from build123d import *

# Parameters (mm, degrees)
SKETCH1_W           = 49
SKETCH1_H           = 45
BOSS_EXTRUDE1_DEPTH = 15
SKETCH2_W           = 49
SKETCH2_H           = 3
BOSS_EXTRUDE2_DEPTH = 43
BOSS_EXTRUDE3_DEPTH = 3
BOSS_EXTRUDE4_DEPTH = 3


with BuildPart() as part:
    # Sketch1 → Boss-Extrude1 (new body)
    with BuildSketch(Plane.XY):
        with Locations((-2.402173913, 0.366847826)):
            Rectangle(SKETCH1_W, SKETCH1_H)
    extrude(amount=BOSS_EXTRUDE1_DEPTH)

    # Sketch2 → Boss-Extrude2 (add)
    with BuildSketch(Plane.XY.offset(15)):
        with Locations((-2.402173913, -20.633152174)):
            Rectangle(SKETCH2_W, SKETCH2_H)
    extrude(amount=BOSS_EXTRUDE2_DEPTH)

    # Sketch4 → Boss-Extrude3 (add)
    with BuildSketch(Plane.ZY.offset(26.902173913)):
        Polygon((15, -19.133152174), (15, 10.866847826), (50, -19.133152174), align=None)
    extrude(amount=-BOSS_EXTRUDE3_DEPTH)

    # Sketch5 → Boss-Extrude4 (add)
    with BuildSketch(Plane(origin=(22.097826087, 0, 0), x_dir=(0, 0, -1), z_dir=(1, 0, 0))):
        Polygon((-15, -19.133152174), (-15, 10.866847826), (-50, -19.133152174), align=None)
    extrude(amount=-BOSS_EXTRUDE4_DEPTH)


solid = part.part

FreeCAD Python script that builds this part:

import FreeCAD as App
import Part
import Sketcher
from FreeCAD import Vector
Q = App.Units.Quantity


def add_polygon(sketch, points):
    """Adds a closed chain of lines whose ends are joined by coincident constraints."""
    first, n = sketch.GeometryCount, len(points)
    for a, b in zip(points, points[1:] + points[:1]):
        sketch.addGeometry(Part.LineSegment(App.Vector(*a, 0), App.Vector(*b, 0)), False)
    for i in range(n):
        sketch.addConstraint(Sketcher.Constraint("Coincident", first + i, 2, first + (i + 1) % n, 1))

doc = App.newDocument("Part")
params = doc.addObject("Spreadsheet::Sheet", "Params")
for row, (alias, value) in enumerate([
    ("sketch1_width", "49 mm"),
    ("sketch1_height", "45 mm"),
    ("pad1_length", "15 mm"),
    ("sketch2_width", "49 mm"),
    ("sketch2_height", "3 mm"),
    ("pad2_length", "43 mm"),
    ("sketch3_width", "30 mm"),
    ("sketch3_height", "35 mm"),
    ("pad3_length", "3 mm"),
    ("sketch4_width", "30 mm"),
    ("sketch4_height", "35 mm"),
    ("pad4_length", "3 mm"),
], start=1):
    params.set(f"A{row}", alias)
    params.set(f"B{row}", "=" + value)
    params.setAlias(f"B{row}", alias)

body = doc.addObject("PartDesign::Body", "Body")

# Sketch on XY plane
sketch1 = body.newObject("Sketcher::SketchObject", "Sketch")
sketch1.AttachmentSupport = (doc.getObject("XY_Plane"), [""])
sketch1.MapMode = "FlatFace"
add_polygon(sketch1, [(-27, 23), (-27, -22), (22, -22), (22, 23)])  # lines 0-3
sketch1.addConstraint([
    Sketcher.Constraint("Vertical", 0),
    Sketcher.Constraint("Horizontal", 1),
    Sketcher.Constraint("Vertical", 2),
    Sketcher.Constraint("Horizontal", 3),
    Sketcher.Constraint("DistanceX", 1, 1, 1, 2, Q("49 mm")),
    Sketcher.Constraint("DistanceY", 0, 2, 0, 1, Q("45 mm")),
    Sketcher.Constraint("DistanceX", 0, 2, -1, 1, Q("26.902174 mm")),
    Sketcher.Constraint("DistanceY", 0, 2, -1, 1, Q("22.133152 mm")),
])
sketch1.setExpression("Constraints[8]", "Params.sketch1_width")
sketch1.setExpression("Constraints[9]", "Params.sketch1_height")
pad1 = body.newObject("PartDesign::Pad", "Pad")
pad1.Profile = sketch1
pad1.setExpression("Length", "Params.pad1_length")

# Sketch on XY plane
sketch2 = body.newObject("Sketcher::SketchObject", "Sketch001")
sketch2.AttachmentSupport = (doc.getObject("XY_Plane"), [""])
sketch2.MapMode = "FlatFace"
sketch2.AttachmentOffset = App.Placement(Vector(0, 0, 15), App.Rotation())
add_polygon(sketch2, [(-26.9, -19.1), (-26.9, -22.1), (22.1, -22.1), (22.1, -19.1)])  # lines 0-3
sketch2.addConstraint([
    Sketcher.Constraint("Vertical", 0),
    Sketcher.Constraint("Horizontal", 1),
    Sketcher.Constraint("Vertical", 2),
    Sketcher.Constraint("Horizontal", 3),
    Sketcher.Constraint("DistanceX", 1, 1, 1, 2, Q("49 mm")),
    Sketcher.Constraint("DistanceY", 0, 2, 0, 1, Q("3 mm")),
    Sketcher.Constraint("DistanceX", 0, 2, -1, 1, Q("26.902174 mm")),
    Sketcher.Constraint("DistanceY", 0, 2, -1, 1, Q("22.133152 mm")),
])
sketch2.setExpression("Constraints[8]", "Params.sketch2_width")
sketch2.setExpression("Constraints[9]", "Params.sketch2_height")
pad2 = body.newObject("PartDesign::Pad", "Pad001")
pad2.Profile = sketch2
pad2.setExpression("Length", "Params.pad2_length")

# Sketch on YZ plane
sketch3 = body.newObject("Sketcher::SketchObject", "Sketch002")
sketch3.AttachmentSupport = (doc.getObject("YZ_Plane"), [""])
sketch3.MapMode = "FlatFace"
sketch3.AttachmentOffset = App.Placement(Vector(0, 0, -26.902174), App.Rotation())
add_polygon(sketch3, [(11, 15), (-19, 15), (-19, 50)])  # lines 0-2
sketch3.addConstraint([
    Sketcher.Constraint("Horizontal", 0),
    Sketcher.Constraint("Vertical", 1),
    Sketcher.Constraint("DistanceX", 0, 2, 0, 1, Q("30 mm")),
    Sketcher.Constraint("DistanceY", 1, 1, 1, 2, Q("35 mm")),
    Sketcher.Constraint("DistanceY", -1, 1, 0, 2, Q("15 mm")),
    Sketcher.Constraint("DistanceX", 0, 2, -1, 1, Q("19.133152 mm")),
])
sketch3.setExpression("Constraints[5]", "Params.sketch3_width")
sketch3.setExpression("Constraints[6]", "Params.sketch3_height")
pad3 = body.newObject("PartDesign::Pad", "Pad002")
pad3.Profile = sketch3
pad3.setExpression("Length", "Params.pad3_length")

# Sketch on YZ plane
sketch4 = body.newObject("Sketcher::SketchObject", "Sketch003")
sketch4.AttachmentSupport = (doc.getObject("YZ_Plane"), [""])
sketch4.MapMode = "FlatFace"
sketch4.AttachmentOffset = App.Placement(Vector(0, 0, 22.097826), App.Rotation())
add_polygon(sketch4, [(-19, 15), (11, 15), (-19, 50)])  # lines 0-2
sketch4.addConstraint([
    Sketcher.Constraint("Horizontal", 0),
    Sketcher.Constraint("Vertical", 2),
    Sketcher.Constraint("DistanceX", 0, 1, 0, 2, Q("30 mm")),
    Sketcher.Constraint("DistanceY", 2, 2, 2, 1, Q("35 mm")),
    Sketcher.Constraint("DistanceY", -1, 1, 0, 2, Q("15 mm")),
    Sketcher.Constraint("DistanceX", -1, 1, 0, 2, Q("10.866848 mm")),
])
sketch4.setExpression("Constraints[5]", "Params.sketch4_width")
sketch4.setExpression("Constraints[6]", "Params.sketch4_height")
pad4 = body.newObject("PartDesign::Pad", "Pad003")
pad4.Profile = sketch4
pad4.setExpression("Length", "Params.pad4_length")
pad4.Reversed = True

doc.recompute()
